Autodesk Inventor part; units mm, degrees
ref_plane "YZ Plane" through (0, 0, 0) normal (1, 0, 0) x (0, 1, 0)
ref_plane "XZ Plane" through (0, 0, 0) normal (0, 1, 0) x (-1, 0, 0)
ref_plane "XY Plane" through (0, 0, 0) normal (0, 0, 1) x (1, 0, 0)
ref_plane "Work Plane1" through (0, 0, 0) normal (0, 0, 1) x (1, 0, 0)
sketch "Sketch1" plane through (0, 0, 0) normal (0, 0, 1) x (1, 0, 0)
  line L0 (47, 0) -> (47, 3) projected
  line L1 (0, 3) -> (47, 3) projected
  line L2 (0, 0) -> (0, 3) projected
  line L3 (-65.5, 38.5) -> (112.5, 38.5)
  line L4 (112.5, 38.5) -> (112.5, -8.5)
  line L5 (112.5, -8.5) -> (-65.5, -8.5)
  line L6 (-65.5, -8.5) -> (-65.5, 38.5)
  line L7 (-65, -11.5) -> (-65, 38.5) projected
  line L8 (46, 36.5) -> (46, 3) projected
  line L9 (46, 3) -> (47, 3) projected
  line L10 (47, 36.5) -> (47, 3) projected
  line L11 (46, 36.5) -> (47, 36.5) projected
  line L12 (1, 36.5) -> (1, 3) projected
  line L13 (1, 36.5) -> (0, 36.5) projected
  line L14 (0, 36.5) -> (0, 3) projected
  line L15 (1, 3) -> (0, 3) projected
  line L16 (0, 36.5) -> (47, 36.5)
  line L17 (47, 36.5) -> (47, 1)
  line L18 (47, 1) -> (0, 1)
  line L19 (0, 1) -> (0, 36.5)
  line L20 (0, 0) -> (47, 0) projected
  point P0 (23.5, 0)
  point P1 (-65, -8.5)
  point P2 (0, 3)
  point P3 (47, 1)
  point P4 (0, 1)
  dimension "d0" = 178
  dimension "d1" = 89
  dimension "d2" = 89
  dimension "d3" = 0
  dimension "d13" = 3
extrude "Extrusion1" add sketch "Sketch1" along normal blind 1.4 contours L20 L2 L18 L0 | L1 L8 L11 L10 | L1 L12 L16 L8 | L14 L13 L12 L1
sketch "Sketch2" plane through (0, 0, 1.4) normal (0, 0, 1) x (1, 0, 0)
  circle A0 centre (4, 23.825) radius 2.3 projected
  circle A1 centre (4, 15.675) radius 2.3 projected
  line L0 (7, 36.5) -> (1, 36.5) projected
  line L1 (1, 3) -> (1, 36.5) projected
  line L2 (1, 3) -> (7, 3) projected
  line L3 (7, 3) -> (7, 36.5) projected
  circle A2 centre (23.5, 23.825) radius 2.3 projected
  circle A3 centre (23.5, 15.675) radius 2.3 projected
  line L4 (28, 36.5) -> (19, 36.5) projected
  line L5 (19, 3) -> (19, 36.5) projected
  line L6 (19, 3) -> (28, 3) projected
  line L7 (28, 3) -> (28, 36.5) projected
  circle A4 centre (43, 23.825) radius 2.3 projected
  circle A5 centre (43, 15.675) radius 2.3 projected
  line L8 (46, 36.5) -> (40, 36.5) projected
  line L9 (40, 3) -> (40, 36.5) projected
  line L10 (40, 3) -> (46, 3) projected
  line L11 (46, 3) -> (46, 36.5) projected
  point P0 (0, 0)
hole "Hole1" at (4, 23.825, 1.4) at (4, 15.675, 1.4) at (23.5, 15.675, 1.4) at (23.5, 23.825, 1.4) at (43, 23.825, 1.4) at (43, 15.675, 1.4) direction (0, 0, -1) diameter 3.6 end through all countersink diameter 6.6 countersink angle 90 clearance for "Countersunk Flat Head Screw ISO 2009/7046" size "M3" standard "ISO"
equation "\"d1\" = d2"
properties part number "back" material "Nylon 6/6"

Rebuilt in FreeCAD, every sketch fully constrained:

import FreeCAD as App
import Part
import Sketcher
from FreeCAD import Vector
Q = App.Units.Quantity


def add_polygon(sketch, points):
    """Adds a closed chain of lines whose ends are joined by coincident constraints."""
    first, n = sketch.GeometryCount, len(points)
    for a, b in zip(points, points[1:] + points[:1]):
        sketch.addGeometry(Part.LineSegment(App.Vector(*a, 0), App.Vector(*b, 0)), False)
    for i in range(n):
        sketch.addConstraint(Sketcher.Constraint("Coincident", first + i, 2, first + (i + 1) % n, 1))

doc = App.newDocument("Part")
body = doc.addObject("PartDesign::Body", "Body")
body.AllowCompound = True

sketch1 = body.newObject("Sketcher::SketchObject", "Sketch")
sketch1.AttachmentSupport = (doc.getObject("XY_Plane"), [""])
sketch1.MapMode = "FlatFace"
add_polygon(sketch1, [(0, 0), (47, 0), (47, 1), (0, 1)])
add_polygon(sketch1, [(47, 3), (47, 36.5), (0, 36.5), (0, 3)])
sketch1.addConstraint([
    Sketcher.Constraint("Horizontal", 0),
    Sketcher.Constraint("Vertical", 1),
    Sketcher.Constraint("Horizontal", 2),
    Sketcher.Constraint("Vertical", 3),
    Sketcher.Constraint("Vertical", 4),
    Sketcher.Constraint("Horizontal", 5),
    Sketcher.Constraint("Vertical", 6),
    Sketcher.Constraint("Horizontal", 7),
    Sketcher.Constraint("Coincident", 3, 2, -1, 1),
    Sketcher.Constraint("PointOnObject", 5, 2, -2),
    Sketcher.Constraint("Vertical", 1, 2, 4, 2),
    Sketcher.Constraint("DistanceY", -1, 1, 6, 2, Q("3 mm")),
    Sketcher.Constraint("DistanceX", 0, 1, 0, 2, Q("47 mm")),
    Sketcher.Constraint("DistanceY", 1, 1, 1, 2, Q("1 mm")),
    Sketcher.Constraint("DistanceY", 4, 1, 4, 2, Q("33.5 mm")),
])
pad1 = body.newObject("PartDesign::Pad", "Pad")
pad1.Profile = sketch1
pad1.Length = 1.4

sketch2 = body.newObject("Sketcher::SketchObject", "Sketch001")
sketch2.AttachmentSupport = (doc.getObject("XY_Plane"), [""])
sketch2.MapMode = "FlatFace"
sketch2.AttachmentOffset = App.Placement(Vector(0, 0, 1.4), App.Rotation())
sketch2.addGeometry([
    Part.Circle(Vector(4, 23.825, 0), Vector(0, 0, 1), 1.8),
    Part.Circle(Vector(4, 15.675, 0), Vector(0, 0, 1), 1.8),
    Part.Circle(Vector(23.5, 15.675, 0), Vector(0, 0, 1), 1.8),
    Part.Circle(Vector(23.5, 23.825, 0), Vector(0, 0, 1), 1.8),
    Part.Circle(Vector(43, 23.825, 0), Vector(0, 0, 1), 1.8),
    Part.Circle(Vector(43, 15.675, 0), Vector(0, 0, 1), 1.8),
], False)
sketch2.addConstraint([
    Sketcher.Constraint("Equal", 0, 1),
    Sketcher.Constraint("Equal", 1, 2),
    Sketcher.Constraint("Equal", 2, 3),
    Sketcher.Constraint("Equal", 3, 4),
    Sketcher.Constraint("Equal", 4, 5),
    Sketcher.Constraint("Horizontal", 1, 3, 2, 3),
    Sketcher.Constraint("Horizontal", 0, 3, 3, 3),
    Sketcher.Constraint("Horizontal", 3, 3, 4, 3),
    Sketcher.Constraint("Horizontal", 2, 3, 5, 3),
    Sketcher.Constraint("Vertical", 0, 3, 1, 3),
    Sketcher.Constraint("Vertical", 2, 3, 3, 3),
    Sketcher.Constraint("Vertical", 4, 3, 5, 3),
    Sketcher.Constraint("Diameter", 0, Q("3.6 mm")),
    Sketcher.Constraint("DistanceX", -1, 1, 0, 3, Q("4 mm")),
    Sketcher.Constraint("DistanceX", -1, 1, 4, 3, Q("43 mm")),
    Sketcher.Constraint("DistanceX", -1, 1, 2, 3, Q("23.5 mm")),
    Sketcher.Constraint("DistanceY", 1, 3, 0, 3, Q("8.15 mm")),
    Sketcher.Constraint("DistanceY", -1, 1, 0, 3, Q("23.825 mm")),
])
doc.recompute()
hole = body.newObject("PartDesign::Hole", "Hole")
hole.Profile = sketch2
hole.ThreadType = "None"
hole.Diameter = 3.6
hole.DepthType = "ThroughAll"
hole.HoleCutType = "Countersink"
hole.HoleCutDiameter = 6.6
hole.HoleCutCountersinkAngle = 90

doc.recompute()
